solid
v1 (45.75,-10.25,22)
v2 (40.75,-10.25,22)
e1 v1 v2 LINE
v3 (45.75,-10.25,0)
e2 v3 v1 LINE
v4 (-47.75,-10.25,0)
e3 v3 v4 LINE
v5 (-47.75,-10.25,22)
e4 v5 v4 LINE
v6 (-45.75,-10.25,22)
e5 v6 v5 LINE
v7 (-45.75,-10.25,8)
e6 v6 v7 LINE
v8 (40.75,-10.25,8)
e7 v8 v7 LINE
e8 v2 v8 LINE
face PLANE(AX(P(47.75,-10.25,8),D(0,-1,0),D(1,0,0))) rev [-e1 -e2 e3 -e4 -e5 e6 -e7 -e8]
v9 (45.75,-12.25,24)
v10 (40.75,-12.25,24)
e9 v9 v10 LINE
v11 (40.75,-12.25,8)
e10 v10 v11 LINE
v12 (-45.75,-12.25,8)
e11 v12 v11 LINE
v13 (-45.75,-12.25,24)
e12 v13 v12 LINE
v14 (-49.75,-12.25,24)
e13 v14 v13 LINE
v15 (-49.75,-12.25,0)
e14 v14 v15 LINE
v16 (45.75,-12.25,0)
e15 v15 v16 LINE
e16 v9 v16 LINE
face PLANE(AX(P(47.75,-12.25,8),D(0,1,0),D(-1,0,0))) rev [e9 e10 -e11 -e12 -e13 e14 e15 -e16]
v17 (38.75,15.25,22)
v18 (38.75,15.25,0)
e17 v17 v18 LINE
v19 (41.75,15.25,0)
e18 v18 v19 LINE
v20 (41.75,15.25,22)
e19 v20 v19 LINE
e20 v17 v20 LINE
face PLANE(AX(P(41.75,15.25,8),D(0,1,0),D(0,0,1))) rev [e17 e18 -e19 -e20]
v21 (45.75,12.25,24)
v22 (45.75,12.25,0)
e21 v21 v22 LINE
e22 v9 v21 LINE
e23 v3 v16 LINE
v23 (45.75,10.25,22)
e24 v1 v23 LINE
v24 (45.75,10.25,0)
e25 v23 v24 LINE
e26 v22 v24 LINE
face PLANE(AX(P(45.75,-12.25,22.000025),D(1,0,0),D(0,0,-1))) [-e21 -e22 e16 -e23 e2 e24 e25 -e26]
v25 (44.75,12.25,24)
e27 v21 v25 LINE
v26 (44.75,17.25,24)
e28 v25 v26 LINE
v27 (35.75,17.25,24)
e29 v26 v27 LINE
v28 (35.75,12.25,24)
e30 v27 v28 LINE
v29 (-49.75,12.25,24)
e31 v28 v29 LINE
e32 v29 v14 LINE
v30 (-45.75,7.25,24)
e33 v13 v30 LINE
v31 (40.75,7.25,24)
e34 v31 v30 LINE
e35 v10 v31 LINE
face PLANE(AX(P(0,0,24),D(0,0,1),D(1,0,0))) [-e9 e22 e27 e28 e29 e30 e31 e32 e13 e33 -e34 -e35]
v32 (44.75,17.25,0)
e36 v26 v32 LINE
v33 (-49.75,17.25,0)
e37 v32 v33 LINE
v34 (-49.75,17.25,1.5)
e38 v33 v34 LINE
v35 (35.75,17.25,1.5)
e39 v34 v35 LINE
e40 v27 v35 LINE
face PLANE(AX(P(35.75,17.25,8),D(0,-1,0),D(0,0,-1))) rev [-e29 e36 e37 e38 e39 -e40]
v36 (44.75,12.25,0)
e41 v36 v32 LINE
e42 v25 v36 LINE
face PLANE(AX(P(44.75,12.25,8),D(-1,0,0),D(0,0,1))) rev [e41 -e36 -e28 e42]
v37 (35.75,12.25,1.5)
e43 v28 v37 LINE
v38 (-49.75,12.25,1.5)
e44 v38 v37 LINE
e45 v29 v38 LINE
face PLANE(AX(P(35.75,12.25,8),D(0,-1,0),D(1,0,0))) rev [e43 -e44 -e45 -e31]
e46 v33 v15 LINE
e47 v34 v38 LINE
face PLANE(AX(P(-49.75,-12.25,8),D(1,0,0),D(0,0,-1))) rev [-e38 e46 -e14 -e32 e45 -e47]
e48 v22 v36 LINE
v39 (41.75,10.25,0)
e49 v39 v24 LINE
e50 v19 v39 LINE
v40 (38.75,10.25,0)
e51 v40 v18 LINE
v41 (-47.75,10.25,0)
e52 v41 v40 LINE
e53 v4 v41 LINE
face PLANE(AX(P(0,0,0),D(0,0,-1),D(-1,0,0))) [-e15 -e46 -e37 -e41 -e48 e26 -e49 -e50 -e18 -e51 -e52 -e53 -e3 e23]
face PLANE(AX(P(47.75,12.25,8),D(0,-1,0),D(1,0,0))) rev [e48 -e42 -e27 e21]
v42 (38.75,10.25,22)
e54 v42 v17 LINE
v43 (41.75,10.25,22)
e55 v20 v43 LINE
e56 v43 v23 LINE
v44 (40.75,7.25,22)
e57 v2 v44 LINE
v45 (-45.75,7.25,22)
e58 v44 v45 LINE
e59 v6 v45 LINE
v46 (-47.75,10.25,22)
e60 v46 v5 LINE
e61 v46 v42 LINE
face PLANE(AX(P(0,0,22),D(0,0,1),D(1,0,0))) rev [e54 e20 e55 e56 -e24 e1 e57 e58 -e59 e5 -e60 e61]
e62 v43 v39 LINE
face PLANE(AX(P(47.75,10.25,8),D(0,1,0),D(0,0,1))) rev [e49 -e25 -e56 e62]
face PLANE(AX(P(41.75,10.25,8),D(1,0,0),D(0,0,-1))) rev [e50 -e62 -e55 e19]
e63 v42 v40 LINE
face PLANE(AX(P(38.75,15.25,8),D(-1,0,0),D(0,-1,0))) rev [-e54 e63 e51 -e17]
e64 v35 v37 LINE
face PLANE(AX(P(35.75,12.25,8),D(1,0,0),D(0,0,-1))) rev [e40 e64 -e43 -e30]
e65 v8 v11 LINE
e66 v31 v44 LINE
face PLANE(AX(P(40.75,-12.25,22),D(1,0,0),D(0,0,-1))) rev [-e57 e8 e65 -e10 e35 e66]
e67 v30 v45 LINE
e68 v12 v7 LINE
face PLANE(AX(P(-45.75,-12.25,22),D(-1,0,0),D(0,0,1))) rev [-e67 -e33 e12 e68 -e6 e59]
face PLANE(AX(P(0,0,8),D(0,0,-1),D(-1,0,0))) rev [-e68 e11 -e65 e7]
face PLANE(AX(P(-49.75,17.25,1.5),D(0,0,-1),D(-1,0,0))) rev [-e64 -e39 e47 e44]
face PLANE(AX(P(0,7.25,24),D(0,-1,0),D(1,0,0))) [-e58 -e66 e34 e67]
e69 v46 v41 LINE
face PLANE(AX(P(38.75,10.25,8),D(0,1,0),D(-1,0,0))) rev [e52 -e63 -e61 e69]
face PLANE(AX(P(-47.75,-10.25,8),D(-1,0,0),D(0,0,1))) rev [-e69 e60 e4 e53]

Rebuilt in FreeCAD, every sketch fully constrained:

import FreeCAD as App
import Part
import Sketcher

V = App.Vector


def add_polygon(sketch, points):
    """Adds a closed chain of lines whose ends are joined by coincident constraints."""
    first, n = sketch.GeometryCount, len(points)
    for a, b in zip(points, points[1:] + points[:1]):
        sketch.addGeometry(Part.LineSegment(App.Vector(*a, 0), App.Vector(*b, 0)), False)
    for i in range(n):
        sketch.addConstraint(Sketcher.Constraint("Coincident", first + i, 2, first + (i + 1) % n, 1))

doc = App.newDocument("Part")
body = doc.addObject("PartDesign::Body", "Body")

# Sketch on XY plane
sketch1 = body.newObject("Sketcher::SketchObject", "Sketch")
sketch1.AttachmentSupport = (doc.getObject("XY_Plane"), [""])
sketch1.MapMode = "FlatFace"
add_polygon(sketch1, [(47.8, 12.2), (44.8, 12.2), (44.8, 17.2), (35.8, 17.2), (35.8, 12.2), (-49.8, 12.2), (-49.8, -12.2), (47.8, -12.2), (47.8, -10.2), (-47.8, -10.2), (-47.8, 10.2), (38.8, 10.2), (38.8, 15.2), (41.8, 15.2), (41.8, 10.2), (47.8, 10.2)])  # lines 0-15
sketch1.addConstraint([
    Sketcher.Constraint("Horizontal", 0),
    Sketcher.Constraint("Vertical", 1),
    Sketcher.Constraint("Horizontal", 2),
    Sketcher.Constraint("Vertical", 3),
    Sketcher.Constraint("Horizontal", 4),
    Sketcher.Constraint("Vertical", 5),
    Sketcher.Constraint("Horizontal", 6),
    Sketcher.Constraint("Vertical", 7),
    Sketcher.Constraint("Horizontal", 8),
    Sketcher.Constraint("Vertical", 9),
    Sketcher.Constraint("Horizontal", 10),
    Sketcher.Constraint("Vertical", 11),
    Sketcher.Constraint("Horizontal", 12),
    Sketcher.Constraint("Vertical", 13),
    Sketcher.Constraint("Horizontal", 14),
    Sketcher.Constraint("Vertical", 15),
    Sketcher.Constraint("Symmetric", 7, 2, 9, 2, -1, 1),
    Sketcher.Constraint("Symmetric", 8, 2, 14, 2, -1, 1),
    Sketcher.Constraint("Horizontal", 0, 2, 3, 2),
    Sketcher.Constraint("Equal", 0, 12),
    Sketcher.Constraint("Equal", 3, 11),
    Sketcher.Constraint("Equal", 7, 15),
    Sketcher.Constraint("DistanceX", 0, 2, 0, 1, 3.0),
    Sketcher.Constraint("DistanceX", 2, 2, 2, 1, 9.0),
    Sketcher.Constraint("DistanceX", 14, 1, 14, 2, 6.0),
    Sketcher.Constraint("DistanceY", 1, 1, 1, 2, 5.0),
    Sketcher.Constraint("DistanceY", 7, 1, 7, 2, 2.0),
    Sketcher.Constraint("DistanceX", 4, 2, 4, 1, 85.5),
    Sketcher.Constraint("DistanceX", 8, 2, 8, 1, 95.5),
    Sketcher.Constraint("DistanceY", 5, 2, 5, 1, 24.5),
])
pad1 = body.newObject("PartDesign::Pad", "Pad")
pad1.Profile = sketch1
pad1.Length = 8

# Sketch on XY plane
sketch2 = body.newObject("Sketcher::SketchObject", "Sketch001")
sketch2.AttachmentSupport = (doc.getObject("XY_Plane"), [""])
sketch2.MapMode = "FlatFace"
sketch2.AttachmentOffset = App.Placement(V(0, 0, 8), App.Rotation())
add_polygon(sketch2, [(47.8, 10.2), (47.8, 12.2), (44.8, 12.2), (44.8, 17.2), (35.8, 17.2), (35.8, 12.2), (-49.8, 12.2), (-49.8, -12.2), (-47.8, -12.2), (-47.8, 10.2), (38.8, 10.2), (38.8, 15.2), (41.8, 15.2), (41.8, 10.2)])  # lines 0-13
sketch2.addConstraint([
    Sketcher.Constraint("Vertical", 0),
    Sketcher.Constraint("Horizontal", 1),
    Sketcher.Constraint("Vertical", 2),
    Sketcher.Constraint("Horizontal", 3),
    Sketcher.Constraint("Vertical", 4),
    Sketcher.Constraint("Horizontal", 5),
    Sketcher.Constraint("Vertical", 6),
    Sketcher.Constraint("Horizontal", 7),
    Sketcher.Constraint("Vertical", 8),
    Sketcher.Constraint("Horizontal", 9),
    Sketcher.Constraint("Vertical", 10),
    Sketcher.Constraint("Horizontal", 11),
    Sketcher.Constraint("Vertical", 12),
    Sketcher.Constraint("Horizontal", 13),
    Sketcher.Constraint("Symmetric", 0, 2, 7, 2, -1, 1),
    Sketcher.Constraint("Horizontal", 1, 2, 4, 2),
    Sketcher.Constraint("Horizontal", 9, 2, 12, 2),
    Sketcher.Constraint("Equal", 1, 11),
    Sketcher.Constraint("Equal", 7, 0),
    Sketcher.Constraint("Equal", 4, 10),
    Sketcher.Constraint("DistanceX", 1, 2, 1, 1, 3.0),
    Sketcher.Constraint("DistanceX", 3, 2, 3, 1, 9.0),
    Sketcher.Constraint("DistanceX", 7, 1, 7, 2, 2.0),
    Sketcher.Constraint("DistanceX", 13, 1, 13, 2, 6.0),
    Sketcher.Constraint("DistanceY", 2, 1, 2, 2, 5.0),
    Sketcher.Constraint("DistanceX", 5, 2, 5, 1, 85.5),
    Sketcher.Constraint("DistanceY", 6, 2, 6, 1, 24.5),
])
pad2 = body.newObject("PartDesign::Pad", "Pad001")
pad2.Profile = sketch2
pad2.Length = 14

# Sketch on XY plane
sketch3 = body.newObject("Sketcher::SketchObject", "Sketch002")
sketch3.AttachmentSupport = (doc.getObject("XY_Plane"), [""])
sketch3.MapMode = "FlatFace"
sketch3.AttachmentOffset = App.Placement(V(0, 0, 8), App.Rotation())
add_polygon(sketch3, [(45.8, 12.2), (45.8, -12.2), (47.8, -12.2), (47.8, 12.2)])  # lines 0-3
sketch3.addConstraint([
    Sketcher.Constraint("Vertical", 0),
    Sketcher.Constraint("Horizontal", 1),
    Sketcher.Constraint("Vertical", 2),
    Sketcher.Constraint("Horizontal", 3),
    Sketcher.Constraint("DistanceX", 1, 1, 1, 2, 2.0),
    Sketcher.Constraint("DistanceY", 0, 2, 0, 1, 24.5),
    Sketcher.Constraint("DistanceX", -1, 1, 0, 2, 45.75),
    Sketcher.Constraint("DistanceY", 0, 2, -1, 1, 12.25),
])
pocket1 = body.newObject("PartDesign::Pocket", "Pocket")
pocket1.Profile = sketch3
pocket1.Type = "ThroughAll"
pocket1.Midplane = True

# Sketch on XY plane
sketch4 = body.newObject("Sketcher::SketchObject", "Sketch003")
sketch4.AttachmentSupport = (doc.getObject("XY_Plane"), [""])
sketch4.MapMode = "FlatFace"
sketch4.AttachmentOffset = App.Placement(V(0, 0, 8), App.Rotation())
add_polygon(sketch4, [(-47.8, -10.2), (-47.8, -12.2), (-45.8, -12.2), (-45.8, -10.2)])  # lines 0-3
add_polygon(sketch4, [(40.8, -10.2), (40.8, -12.2), (45.8, -12.2), (45.8, -10.2)])  # lines 4-7
sketch4.addConstraint([
    Sketcher.Constraint("Vertical", 0),
    Sketcher.Constraint("Horizontal", 1),
    Sketcher.Constraint("Vertical", 2),
    Sketcher.Constraint("Horizontal", 3),
    Sketcher.Constraint("Vertical", 4),
    Sketcher.Constraint("Horizontal", 5),
    Sketcher.Constraint("Vertical", 6),
    Sketcher.Constraint("Horizontal", 7),
    Sketcher.Constraint("Symmetric", 1, 2, 5, 2, -2),
    Sketcher.Constraint("Horizontal", 3, 2, 6, 2),
    Sketcher.Constraint("Equal", 3, 0),
    Sketcher.Constraint("DistanceX", 1, 1, 1, 2, 2.0),
    Sketcher.Constraint("DistanceX", 5, 1, 5, 2, 5.0),
    Sketcher.Constraint("DistanceX", 1, 2, 4, 2, 86.5),
    Sketcher.Constraint("DistanceY", 0, 2, -1, 1, 12.25),
])
pad3 = body.newObject("PartDesign::Pad", "Pad002")
pad3.Profile = sketch4
pad3.Length = 14

# Sketch on XY plane
sketch5 = body.newObject("Sketcher::SketchObject", "Sketch004")
sketch5.AttachmentSupport = (doc.getObject("XY_Plane"), [""])
sketch5.MapMode = "FlatFace"
sketch5.AttachmentOffset = App.Placement(V(0, 0, 22), App.Rotation())
add_polygon(sketch5, [(40.8, -12.2), (45.8, -12.2), (45.8, 12.2), (44.8, 12.2), (44.8, 17.2), (35.8, 17.2), (35.8, 12.2), (-49.8, 12.2), (-49.8, -12.2), (-45.8, -12.2), (-45.8, 7.2), (40.8, 7.2)])  # lines 0-11
sketch5.addConstraint([
    Sketcher.Constraint("Horizontal", 0),
    Sketcher.Constraint("Vertical", 1),
    Sketcher.Constraint("Horizontal", 2),
    Sketcher.Constraint("Vertical", 3),
    Sketcher.Constraint("Horizontal", 4),
    Sketcher.Constraint("Vertical", 5),
    Sketcher.Constraint("Horizontal", 6),
    Sketcher.Constraint("Vertical", 7),
    Sketcher.Constraint("Horizontal", 8),
    Sketcher.Constraint("Vertical", 9),
    Sketcher.Constraint("Horizontal", 10),
    Sketcher.Constraint("Vertical", 11),
    Sketcher.Constraint("Symmetric", 1, 2, 8, 2, -1, 1),
    Sketcher.Constraint("Horizontal", 2, 2, 5, 2),
    Sketcher.Constraint("Horizontal", 0, 2, 7, 2),
    Sketcher.Constraint("Equal", 0, 3),
    Sketcher.Constraint("DistanceX", 0, 1, 0, 2, 5.0),
    Sketcher.Constraint("DistanceX", 2, 2, 2, 1, 1.0),
    Sketcher.Constraint("DistanceX", 4, 2, 4, 1, 9.0),
    Sketcher.Constraint("DistanceX", 8, 1, 8, 2, 4.0),
    Sketcher.Constraint("DistanceX", 6, 2, 6, 1, 85.5),
    Sketcher.Constraint("DistanceY", 1, 1, 1, 2, 24.5),
    Sketcher.Constraint("DistanceY", 9, 1, 9, 2, 19.5),
])
pad4 = body.newObject("PartDesign::Pad", "Pad003")
pad4.Profile = sketch5
pad4.Length = 2

# Sketch on XZ plane
sketch6 = body.newObject("Sketcher::SketchObject", "Sketch005")
sketch6.AttachmentSupport = (doc.getObject("XZ_Plane"), [""])
sketch6.MapMode = "FlatFace"
sketch6.AttachmentOffset = App.Placement(V(0, 0, -12.25), App.Rotation())
add_polygon(sketch6, [(-49.8, 0), (-49.8, 1.5), (35.8, 1.5), (35.8, 0)])  # lines 0-3
sketch6.addConstraint([
    Sketcher.Constraint("Vertical", 0),
    Sketcher.Constraint("Horizontal", 1),
    Sketcher.Constraint("Vertical", 2),
    Sketcher.Constraint("Horizontal", 3),
    Sketcher.Constraint("PointOnObject", 2, 2, -1),
    Sketcher.Constraint("DistanceX", 1, 1, 1, 2, 85.5),
    Sketcher.Constraint("DistanceY", 0, 1, 0, 2, 1.5),
    Sketcher.Constraint("DistanceX", 0, 2, -1, 1, 49.75),
])
pad5 = body.newObject("PartDesign::Pad", "Pad004")
pad5.Profile = sketch6
pad5.Length = 5
pad5.Reversed = True

doc.recompute()
